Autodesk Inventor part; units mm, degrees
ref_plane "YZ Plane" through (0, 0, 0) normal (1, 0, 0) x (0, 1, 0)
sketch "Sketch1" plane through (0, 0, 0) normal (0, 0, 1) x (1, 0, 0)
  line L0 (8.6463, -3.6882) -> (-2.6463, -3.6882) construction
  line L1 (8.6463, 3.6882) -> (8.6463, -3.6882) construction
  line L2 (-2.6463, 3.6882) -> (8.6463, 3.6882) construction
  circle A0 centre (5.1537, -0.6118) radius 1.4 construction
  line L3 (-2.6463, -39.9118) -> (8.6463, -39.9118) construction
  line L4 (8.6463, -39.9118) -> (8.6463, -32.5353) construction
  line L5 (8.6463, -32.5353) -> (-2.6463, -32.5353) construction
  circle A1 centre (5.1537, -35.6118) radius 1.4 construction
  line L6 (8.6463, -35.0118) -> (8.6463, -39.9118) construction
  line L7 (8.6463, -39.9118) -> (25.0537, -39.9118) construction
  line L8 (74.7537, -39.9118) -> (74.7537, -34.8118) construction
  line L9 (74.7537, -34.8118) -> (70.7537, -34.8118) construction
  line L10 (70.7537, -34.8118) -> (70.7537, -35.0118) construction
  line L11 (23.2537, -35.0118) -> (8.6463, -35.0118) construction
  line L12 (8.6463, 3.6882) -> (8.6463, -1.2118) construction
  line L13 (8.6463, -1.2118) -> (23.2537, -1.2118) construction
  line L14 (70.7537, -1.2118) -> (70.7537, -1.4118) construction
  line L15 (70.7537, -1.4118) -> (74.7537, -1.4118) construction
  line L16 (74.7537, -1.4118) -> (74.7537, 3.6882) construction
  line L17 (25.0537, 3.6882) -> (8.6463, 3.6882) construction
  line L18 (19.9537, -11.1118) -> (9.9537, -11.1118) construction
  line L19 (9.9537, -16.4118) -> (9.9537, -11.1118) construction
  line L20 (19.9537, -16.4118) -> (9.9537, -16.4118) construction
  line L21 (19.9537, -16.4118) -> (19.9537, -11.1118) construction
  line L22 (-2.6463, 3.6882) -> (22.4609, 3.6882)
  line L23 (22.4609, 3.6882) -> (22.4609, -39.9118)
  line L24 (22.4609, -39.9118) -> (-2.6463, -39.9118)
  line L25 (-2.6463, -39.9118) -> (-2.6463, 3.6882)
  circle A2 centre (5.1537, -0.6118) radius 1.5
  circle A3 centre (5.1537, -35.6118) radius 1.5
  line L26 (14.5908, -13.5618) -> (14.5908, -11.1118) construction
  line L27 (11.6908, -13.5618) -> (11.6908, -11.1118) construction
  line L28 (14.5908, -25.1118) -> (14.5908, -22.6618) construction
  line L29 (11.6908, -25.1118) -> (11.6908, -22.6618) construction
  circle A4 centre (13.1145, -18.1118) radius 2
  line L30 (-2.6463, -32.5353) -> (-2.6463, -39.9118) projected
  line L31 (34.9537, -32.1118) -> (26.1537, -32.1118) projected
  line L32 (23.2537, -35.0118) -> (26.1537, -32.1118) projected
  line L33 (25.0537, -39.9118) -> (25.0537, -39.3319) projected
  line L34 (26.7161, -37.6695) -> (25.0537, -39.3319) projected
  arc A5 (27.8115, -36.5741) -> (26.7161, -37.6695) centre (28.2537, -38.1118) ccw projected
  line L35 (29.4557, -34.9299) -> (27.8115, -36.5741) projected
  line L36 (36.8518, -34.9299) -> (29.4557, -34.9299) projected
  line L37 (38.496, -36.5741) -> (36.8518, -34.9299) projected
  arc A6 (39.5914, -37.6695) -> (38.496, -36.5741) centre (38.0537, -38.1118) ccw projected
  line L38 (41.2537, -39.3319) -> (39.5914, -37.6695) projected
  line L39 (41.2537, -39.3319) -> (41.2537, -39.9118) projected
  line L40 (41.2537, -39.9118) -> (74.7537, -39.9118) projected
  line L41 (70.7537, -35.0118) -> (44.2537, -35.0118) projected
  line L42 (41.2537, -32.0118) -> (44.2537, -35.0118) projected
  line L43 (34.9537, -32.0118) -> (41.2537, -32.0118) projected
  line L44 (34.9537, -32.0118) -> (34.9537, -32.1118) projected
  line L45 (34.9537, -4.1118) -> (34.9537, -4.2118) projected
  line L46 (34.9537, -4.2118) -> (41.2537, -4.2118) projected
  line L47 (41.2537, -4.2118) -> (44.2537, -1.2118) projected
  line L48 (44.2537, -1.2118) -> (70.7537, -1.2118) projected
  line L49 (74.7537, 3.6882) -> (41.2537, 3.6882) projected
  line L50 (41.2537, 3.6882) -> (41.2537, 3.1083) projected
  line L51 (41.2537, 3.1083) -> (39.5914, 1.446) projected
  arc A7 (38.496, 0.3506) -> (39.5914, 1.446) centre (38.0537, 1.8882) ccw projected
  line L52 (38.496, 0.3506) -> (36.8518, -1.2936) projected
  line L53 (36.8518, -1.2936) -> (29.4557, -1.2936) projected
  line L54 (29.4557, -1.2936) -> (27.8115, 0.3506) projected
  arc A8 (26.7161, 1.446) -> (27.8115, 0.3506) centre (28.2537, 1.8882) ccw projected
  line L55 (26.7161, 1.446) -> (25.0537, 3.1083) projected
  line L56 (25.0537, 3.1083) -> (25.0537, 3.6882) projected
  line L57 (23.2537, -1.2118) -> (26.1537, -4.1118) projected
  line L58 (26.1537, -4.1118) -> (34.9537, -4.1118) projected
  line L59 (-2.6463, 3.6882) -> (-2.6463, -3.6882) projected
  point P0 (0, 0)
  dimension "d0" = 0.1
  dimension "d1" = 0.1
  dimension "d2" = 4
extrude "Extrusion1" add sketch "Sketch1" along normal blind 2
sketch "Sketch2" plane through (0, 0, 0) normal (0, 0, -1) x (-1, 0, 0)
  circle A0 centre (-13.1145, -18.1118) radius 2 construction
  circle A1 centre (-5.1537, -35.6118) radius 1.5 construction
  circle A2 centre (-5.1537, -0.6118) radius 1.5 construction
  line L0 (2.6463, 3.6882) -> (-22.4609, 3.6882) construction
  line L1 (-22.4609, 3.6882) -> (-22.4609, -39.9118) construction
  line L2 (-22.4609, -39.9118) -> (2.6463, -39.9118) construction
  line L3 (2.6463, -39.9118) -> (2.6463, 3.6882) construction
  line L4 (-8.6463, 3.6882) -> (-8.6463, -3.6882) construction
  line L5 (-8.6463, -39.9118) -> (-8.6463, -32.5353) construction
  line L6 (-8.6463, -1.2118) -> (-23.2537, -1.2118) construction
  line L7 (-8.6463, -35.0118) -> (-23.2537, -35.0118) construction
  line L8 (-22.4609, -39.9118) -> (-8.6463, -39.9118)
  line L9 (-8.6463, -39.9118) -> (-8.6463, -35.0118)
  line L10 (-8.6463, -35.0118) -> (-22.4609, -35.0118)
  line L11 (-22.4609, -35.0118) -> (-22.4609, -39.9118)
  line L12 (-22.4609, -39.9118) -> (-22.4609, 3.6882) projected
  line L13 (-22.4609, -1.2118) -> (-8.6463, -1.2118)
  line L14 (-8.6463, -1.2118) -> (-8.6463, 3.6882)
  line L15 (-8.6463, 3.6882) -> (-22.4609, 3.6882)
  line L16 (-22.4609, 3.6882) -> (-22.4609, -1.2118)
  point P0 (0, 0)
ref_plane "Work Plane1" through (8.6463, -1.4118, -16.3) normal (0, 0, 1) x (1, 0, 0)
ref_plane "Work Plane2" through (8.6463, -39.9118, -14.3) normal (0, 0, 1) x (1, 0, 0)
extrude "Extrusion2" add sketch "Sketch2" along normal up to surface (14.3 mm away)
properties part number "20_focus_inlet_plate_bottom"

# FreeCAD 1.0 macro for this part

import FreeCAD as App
import Part
import Sketcher
Q = App.Units.Quantity

doc = App.newDocument("Part")
body = doc.addObject("PartDesign::Body", "Body")

# Sketch on XY plane
sketch1 = body.newObject("Sketcher::SketchObject", "Sketch")
sketch1.AttachmentSupport = (doc.getObject("XY_Plane"), [""])
sketch1.MapMode = "FlatFace"
sketch1.addGeometry([
    Part.LineSegment(App.Vector(22.5, 3.7, 0), App.Vector(-2.6, 3.7, 0)),  # 0
    Part.LineSegment(App.Vector(-2.6, 3.7, 0), App.Vector(-2.6, -39.9, 0)),  # 1
    Part.LineSegment(App.Vector(-2.6, -39.9, 0), App.Vector(22.5, -39.9, 0)),  # 2
    Part.LineSegment(App.Vector(22.5, -39.9, 0), App.Vector(22.5, 3.7, 0)),  # 3
    Part.Circle(App.Vector(5.2, -35.6, 0), App.Vector(0, 0, 1), 1.5),  # 4
    Part.Circle(App.Vector(13.1, -18.1, 0), App.Vector(0, 0, 1), 2),  # 5
    Part.Circle(App.Vector(5.2, -0.6, 0), App.Vector(0, 0, 1), 1.5),  # 6
], False)
sketch1.addConstraint([
    Sketcher.Constraint("Coincident", 0, 2, 1, 1),
    Sketcher.Constraint("Coincident", 1, 2, 2, 1),
    Sketcher.Constraint("Coincident", 2, 2, 3, 1),
    Sketcher.Constraint("Coincident", 3, 2, 0, 1),
    Sketcher.Constraint("Horizontal", 0),
    Sketcher.Constraint("Vertical", 1),
    Sketcher.Constraint("Horizontal", 2),
    Sketcher.Constraint("Vertical", 3),
    Sketcher.Constraint("Equal", 4, 6),
    Sketcher.Constraint("Vertical", 4, 3, 6, 3),
    Sketcher.Constraint("Diameter", 5, Q("4 mm")),
    Sketcher.Constraint("Diameter", 4, Q("3 mm")),
    Sketcher.Constraint("DistanceY", 1, 2, 1, 1, Q("43.6 mm")),
    Sketcher.Constraint("DistanceY", 4, 3, 6, 3, Q("35 mm")),
    Sketcher.Constraint("DistanceY", 4, 3, 5, 3, Q("17.5 mm")),
    Sketcher.Constraint("DistanceX", 0, 2, 6, 3, Q("7.8 mm")),
    Sketcher.Constraint("DistanceY", 6, 3, 0, 2, Q("4.3 mm")),
    Sketcher.Constraint("DistanceX", 0, 2, 0, 1, Q("25.1072 mm")),
    Sketcher.Constraint("DistanceX", -1, 1, 2, 2, Q("22.461 mm")),
    Sketcher.Constraint("DistanceY", 4, 3, -1, 1, Q("35.6118 mm")),
    Sketcher.Constraint("DistanceX", -1, 1, 5, 3, Q("13.1145 mm")),
])
pad1 = body.newObject("PartDesign::Pad", "Pad")
pad1.Profile = sketch1
pad1.Length = 2

# Sketch on XY plane
sketch2 = body.newObject("Sketcher::SketchObject", "Sketch001")
sketch2.AttachmentSupport = (doc.getObject("XY_Plane"), [""])
sketch2.MapMode = "FlatFace"
sketch2.addGeometry([
    Part.LineSegment(App.Vector(22.5, -35, 0), App.Vector(22.5, -39.9, 0)),  # 0
    Part.LineSegment(App.Vector(22.5, -39.9, 0), App.Vector(8.6, -39.9, 0)),  # 1
    Part.LineSegment(App.Vector(8.6, -39.9, 0), App.Vector(8.6, -35, 0)),  # 2
    Part.LineSegment(App.Vector(8.6, -35, 0), App.Vector(22.5, -35, 0)),  # 3
    Part.LineSegment(App.Vector(22.5, 3.7, 0), App.Vector(22.5, -1.2, 0)),  # 4
    Part.LineSegment(App.Vector(22.5, -1.2, 0), App.Vector(8.6, -1.2, 0)),  # 5
    Part.LineSegment(App.Vector(8.6, -1.2, 0), App.Vector(8.6, 3.7, 0)),  # 6
    Part.LineSegment(App.Vector(8.6, 3.7, 0), App.Vector(22.5, 3.7, 0)),  # 7
], False)
sketch2.addConstraint([
    Sketcher.Constraint("Coincident", 0, 2, 1, 1),
    Sketcher.Constraint("Coincident", 1, 2, 2, 1),
    Sketcher.Constraint("Coincident", 2, 2, 3, 1),
    Sketcher.Constraint("Coincident", 3, 2, 0, 1),
    Sketcher.Constraint("Coincident", 4, 2, 5, 1),
    Sketcher.Constraint("Coincident", 5, 2, 6, 1),
    Sketcher.Constraint("Coincident", 6, 2, 7, 1),
    Sketcher.Constraint("Coincident", 7, 2, 4, 1),
    Sketcher.Constraint("Vertical", 0),
    Sketcher.Constraint("Horizontal", 1),
    Sketcher.Constraint("Vertical", 2),
    Sketcher.Constraint("Horizontal", 3),
    Sketcher.Constraint("Vertical", 4),
    Sketcher.Constraint("Horizontal", 5),
    Sketcher.Constraint("Vertical", 6),
    Sketcher.Constraint("Horizontal", 7),
    Sketcher.Constraint("Vertical", 3, 2, 4, 2),
    Sketcher.Constraint("Vertical", 2, 2, 5, 2),
    Sketcher.Constraint("Equal", 2, 4),
    Sketcher.Constraint("DistanceY", 0, 2, 0, 1, Q("4.9 mm")),
    Sketcher.Constraint("DistanceY", 3, 2, 4, 2, Q("33.8 mm")),
    Sketcher.Constraint("DistanceX", 1, 2, 1, 1, Q("13.8146 mm")),
    Sketcher.Constraint("DistanceX", -1, 1, 0, 2, Q("22.461 mm")),
    Sketcher.Constraint("DistanceY", 0, 2, -1, 1, Q("39.9118 mm")),
])
pad2 = body.newObject("PartDesign::Pad", "Pad001")
pad2.Profile = sketch2
pad2.Length = 14.3
pad2.Reversed = True

doc.recompute()
